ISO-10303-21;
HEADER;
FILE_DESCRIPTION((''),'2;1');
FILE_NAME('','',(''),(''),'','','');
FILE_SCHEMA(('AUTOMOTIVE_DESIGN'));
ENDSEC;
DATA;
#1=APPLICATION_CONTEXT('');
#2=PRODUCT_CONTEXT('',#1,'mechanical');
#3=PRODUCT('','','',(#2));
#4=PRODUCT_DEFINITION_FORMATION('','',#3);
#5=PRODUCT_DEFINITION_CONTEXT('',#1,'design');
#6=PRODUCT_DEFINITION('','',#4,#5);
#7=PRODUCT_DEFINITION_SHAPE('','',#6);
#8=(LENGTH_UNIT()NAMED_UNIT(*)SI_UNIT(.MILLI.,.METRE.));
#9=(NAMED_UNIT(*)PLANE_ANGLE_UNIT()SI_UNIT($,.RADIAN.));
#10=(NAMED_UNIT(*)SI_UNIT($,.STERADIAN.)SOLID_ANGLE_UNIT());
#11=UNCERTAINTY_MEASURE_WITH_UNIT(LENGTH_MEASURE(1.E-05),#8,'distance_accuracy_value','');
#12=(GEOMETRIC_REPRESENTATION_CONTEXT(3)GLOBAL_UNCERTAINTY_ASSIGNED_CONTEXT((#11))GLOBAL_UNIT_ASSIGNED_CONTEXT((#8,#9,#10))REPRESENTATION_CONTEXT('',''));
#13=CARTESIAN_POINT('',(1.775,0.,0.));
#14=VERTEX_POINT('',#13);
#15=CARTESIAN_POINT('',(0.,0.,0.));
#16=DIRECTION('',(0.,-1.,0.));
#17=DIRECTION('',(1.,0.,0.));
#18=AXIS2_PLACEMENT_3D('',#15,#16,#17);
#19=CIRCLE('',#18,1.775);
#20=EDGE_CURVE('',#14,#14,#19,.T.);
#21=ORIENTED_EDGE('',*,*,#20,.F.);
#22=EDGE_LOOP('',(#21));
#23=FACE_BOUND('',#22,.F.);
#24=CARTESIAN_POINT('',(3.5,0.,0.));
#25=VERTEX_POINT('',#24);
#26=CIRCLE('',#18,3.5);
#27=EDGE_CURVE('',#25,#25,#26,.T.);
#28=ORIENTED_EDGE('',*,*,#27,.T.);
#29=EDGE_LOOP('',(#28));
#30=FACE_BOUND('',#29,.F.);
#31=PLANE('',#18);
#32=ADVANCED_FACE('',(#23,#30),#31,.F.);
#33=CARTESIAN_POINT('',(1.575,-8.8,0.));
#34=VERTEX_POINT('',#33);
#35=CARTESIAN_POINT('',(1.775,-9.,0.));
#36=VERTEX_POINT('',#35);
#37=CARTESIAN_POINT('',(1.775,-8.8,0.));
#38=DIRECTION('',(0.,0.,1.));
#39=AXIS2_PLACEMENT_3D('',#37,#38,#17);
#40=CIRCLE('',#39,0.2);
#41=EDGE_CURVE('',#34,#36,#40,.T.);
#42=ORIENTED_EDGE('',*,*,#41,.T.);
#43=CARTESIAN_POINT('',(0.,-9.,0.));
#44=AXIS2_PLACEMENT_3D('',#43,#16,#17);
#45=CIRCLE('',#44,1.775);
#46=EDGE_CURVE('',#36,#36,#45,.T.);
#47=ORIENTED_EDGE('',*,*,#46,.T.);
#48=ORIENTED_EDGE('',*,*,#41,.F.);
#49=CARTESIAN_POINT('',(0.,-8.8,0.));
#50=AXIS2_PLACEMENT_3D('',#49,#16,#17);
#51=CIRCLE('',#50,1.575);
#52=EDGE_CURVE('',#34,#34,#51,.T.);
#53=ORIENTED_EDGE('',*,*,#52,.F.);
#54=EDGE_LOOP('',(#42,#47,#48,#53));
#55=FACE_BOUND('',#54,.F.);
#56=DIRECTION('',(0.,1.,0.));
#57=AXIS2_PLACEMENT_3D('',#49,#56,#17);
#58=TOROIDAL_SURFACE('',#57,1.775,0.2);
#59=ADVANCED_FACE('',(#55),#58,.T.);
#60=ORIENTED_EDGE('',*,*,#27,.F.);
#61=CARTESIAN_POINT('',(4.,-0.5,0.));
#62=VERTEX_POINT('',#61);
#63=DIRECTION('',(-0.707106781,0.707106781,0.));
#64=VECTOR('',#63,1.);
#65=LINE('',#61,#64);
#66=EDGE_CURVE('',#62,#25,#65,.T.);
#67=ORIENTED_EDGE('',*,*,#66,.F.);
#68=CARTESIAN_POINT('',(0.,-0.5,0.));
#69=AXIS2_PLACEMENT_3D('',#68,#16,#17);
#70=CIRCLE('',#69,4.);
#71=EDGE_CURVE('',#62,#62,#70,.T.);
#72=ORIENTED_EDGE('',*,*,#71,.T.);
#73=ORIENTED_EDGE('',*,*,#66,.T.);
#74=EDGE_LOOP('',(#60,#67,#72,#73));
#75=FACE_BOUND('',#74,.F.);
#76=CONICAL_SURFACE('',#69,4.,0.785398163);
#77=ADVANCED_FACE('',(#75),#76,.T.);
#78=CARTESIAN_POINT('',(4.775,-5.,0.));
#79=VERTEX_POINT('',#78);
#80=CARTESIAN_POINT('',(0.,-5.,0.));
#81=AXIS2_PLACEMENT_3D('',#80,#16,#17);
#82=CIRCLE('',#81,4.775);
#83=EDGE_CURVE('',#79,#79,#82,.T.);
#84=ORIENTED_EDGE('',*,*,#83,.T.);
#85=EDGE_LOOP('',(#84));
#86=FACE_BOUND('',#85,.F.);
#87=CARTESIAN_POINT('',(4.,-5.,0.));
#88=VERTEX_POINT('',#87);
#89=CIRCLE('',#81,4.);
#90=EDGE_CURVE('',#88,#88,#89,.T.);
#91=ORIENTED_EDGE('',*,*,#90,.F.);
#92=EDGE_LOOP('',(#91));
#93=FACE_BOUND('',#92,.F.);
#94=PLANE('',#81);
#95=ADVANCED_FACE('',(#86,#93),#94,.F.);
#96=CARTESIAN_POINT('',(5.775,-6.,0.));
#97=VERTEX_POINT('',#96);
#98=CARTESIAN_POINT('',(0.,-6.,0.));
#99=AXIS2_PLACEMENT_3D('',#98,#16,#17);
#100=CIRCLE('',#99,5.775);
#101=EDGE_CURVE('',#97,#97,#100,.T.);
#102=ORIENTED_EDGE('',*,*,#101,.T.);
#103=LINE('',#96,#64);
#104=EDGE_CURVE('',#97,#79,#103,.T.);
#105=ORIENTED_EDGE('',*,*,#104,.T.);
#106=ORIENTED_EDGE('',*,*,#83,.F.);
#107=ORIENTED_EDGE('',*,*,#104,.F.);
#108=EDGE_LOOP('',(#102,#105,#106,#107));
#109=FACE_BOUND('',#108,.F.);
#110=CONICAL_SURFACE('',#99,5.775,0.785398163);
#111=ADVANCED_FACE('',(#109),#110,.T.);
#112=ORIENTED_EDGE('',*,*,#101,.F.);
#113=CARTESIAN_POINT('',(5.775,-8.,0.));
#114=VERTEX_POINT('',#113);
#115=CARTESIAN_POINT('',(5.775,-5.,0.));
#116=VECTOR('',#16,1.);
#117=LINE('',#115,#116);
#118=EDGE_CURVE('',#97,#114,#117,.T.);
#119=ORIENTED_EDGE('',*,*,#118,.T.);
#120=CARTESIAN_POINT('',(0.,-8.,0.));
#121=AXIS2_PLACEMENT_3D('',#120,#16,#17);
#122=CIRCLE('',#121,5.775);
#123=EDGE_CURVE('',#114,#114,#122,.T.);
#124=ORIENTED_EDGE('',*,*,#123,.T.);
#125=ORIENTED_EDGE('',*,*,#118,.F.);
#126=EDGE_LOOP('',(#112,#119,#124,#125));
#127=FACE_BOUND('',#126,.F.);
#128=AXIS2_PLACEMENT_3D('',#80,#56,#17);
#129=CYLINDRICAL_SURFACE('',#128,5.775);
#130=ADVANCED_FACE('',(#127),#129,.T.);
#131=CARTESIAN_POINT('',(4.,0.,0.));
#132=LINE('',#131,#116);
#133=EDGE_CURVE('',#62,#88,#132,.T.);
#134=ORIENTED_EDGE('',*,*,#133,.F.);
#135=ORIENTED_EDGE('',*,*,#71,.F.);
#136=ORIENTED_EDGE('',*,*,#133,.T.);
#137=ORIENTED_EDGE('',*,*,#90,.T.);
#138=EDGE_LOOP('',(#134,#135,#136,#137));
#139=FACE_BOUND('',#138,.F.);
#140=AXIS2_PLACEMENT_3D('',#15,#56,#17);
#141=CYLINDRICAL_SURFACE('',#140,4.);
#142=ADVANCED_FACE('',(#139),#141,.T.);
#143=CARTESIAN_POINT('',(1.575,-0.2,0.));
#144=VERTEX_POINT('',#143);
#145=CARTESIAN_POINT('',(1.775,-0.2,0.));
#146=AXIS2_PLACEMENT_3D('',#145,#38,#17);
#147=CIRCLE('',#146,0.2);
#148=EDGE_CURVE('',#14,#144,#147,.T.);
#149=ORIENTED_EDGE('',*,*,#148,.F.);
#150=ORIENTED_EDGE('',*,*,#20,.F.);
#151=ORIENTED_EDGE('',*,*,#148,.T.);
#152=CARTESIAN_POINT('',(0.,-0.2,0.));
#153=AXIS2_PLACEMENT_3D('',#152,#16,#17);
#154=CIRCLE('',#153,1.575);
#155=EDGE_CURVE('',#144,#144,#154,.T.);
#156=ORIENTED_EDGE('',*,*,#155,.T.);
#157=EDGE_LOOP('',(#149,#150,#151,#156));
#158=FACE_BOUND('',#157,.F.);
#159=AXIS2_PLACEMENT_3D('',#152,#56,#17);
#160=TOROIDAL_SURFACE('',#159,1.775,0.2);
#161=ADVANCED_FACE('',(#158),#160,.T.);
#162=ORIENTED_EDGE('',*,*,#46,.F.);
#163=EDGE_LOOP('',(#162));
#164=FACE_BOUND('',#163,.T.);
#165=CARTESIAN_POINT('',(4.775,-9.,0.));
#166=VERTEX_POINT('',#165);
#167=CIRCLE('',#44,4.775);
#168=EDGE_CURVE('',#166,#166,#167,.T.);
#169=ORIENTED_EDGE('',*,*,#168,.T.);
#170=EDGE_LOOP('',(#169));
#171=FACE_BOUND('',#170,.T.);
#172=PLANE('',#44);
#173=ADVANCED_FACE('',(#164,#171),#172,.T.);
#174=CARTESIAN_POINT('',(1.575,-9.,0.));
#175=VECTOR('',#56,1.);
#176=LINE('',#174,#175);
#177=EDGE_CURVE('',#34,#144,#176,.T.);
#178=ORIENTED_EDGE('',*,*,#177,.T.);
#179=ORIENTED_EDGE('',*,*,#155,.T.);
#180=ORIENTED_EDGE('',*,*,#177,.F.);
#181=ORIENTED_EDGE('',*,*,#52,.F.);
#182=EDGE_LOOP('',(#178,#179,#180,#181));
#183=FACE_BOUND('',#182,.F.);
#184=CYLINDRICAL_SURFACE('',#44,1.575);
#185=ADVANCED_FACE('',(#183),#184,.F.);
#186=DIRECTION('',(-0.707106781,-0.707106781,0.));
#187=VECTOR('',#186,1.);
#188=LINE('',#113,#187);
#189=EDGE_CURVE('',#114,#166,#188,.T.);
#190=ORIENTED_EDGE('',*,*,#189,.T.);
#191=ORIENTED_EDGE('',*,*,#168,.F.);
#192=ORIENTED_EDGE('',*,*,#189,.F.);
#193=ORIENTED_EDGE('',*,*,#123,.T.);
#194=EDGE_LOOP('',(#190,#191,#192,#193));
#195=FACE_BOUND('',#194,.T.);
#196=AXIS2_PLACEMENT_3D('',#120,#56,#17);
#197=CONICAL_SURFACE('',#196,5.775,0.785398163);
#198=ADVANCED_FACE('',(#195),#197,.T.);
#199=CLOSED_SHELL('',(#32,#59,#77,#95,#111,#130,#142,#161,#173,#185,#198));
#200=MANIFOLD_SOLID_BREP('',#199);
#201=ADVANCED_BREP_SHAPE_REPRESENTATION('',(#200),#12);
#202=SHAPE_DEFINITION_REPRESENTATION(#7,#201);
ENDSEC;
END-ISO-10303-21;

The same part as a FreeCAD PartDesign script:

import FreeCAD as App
import Part
import Sketcher


def edges_at(feature, points):
    """Names of the edges that pass closest to the given points."""
    edges = feature.Shape.Edges
    near = lambda p: min(range(len(edges)), key=lambda i: edges[i].distToShape(Part.Vertex(*p))[0])
    return sorted({f"Edge{near(p) + 1}" for p in points})

doc = App.newDocument("Part")
body = doc.addObject("PartDesign::Body", "Body")

# Sketch on XZ plane
sketch1 = body.newObject("Sketcher::SketchObject", "Sketch")
sketch1.AttachmentSupport = (doc.getObject("XZ_Plane"), [""])
sketch1.MapMode = "FlatFace"
sketch1.addGeometry(Part.Circle(App.Vector(0, 0, 0), App.Vector(0, 0, 1), 4), False)
sketch1.addConstraint(Sketcher.Constraint("Coincident", 0, 3, -1, 1))
sketch1.addConstraint(Sketcher.Constraint("Diameter", 0, 8.0))
pad1 = body.newObject("PartDesign::Pad", "Pad")
pad1.Profile = sketch1
pad1.Length = 5

# Sketch on XZ plane
sketch2 = body.newObject("Sketcher::SketchObject", "Sketch001")
sketch2.AttachmentSupport = (doc.getObject("XZ_Plane"), [""])
sketch2.MapMode = "FlatFace"
sketch2.AttachmentOffset = App.Placement(App.Vector(0, 0, 5), App.Rotation())
sketch2.addGeometry(Part.Circle(App.Vector(0, 0, 0), App.Vector(0, 0, 1), 6), False)
sketch2.addConstraint(Sketcher.Constraint("Coincident", 0, 3, -1, 1))
sketch2.addConstraint(Sketcher.Constraint("Diameter", 0, 11.55))
pad2 = body.newObject("PartDesign::Pad", "Pad001")
pad2.Profile = sketch2
pad2.Length = 4

# Sketch on XZ plane
sketch3 = body.newObject("Sketcher::SketchObject", "Sketch002")
sketch3.AttachmentSupport = (doc.getObject("XZ_Plane"), [""])
sketch3.MapMode = "FlatFace"
sketch3.AttachmentOffset = App.Placement(App.Vector(0, 0, 9), App.Rotation())
sketch3.addGeometry(Part.Circle(App.Vector(0, 0, 0), App.Vector(0, 0, 1), 1.6), False)
sketch3.addConstraint(Sketcher.Constraint("Coincident", 0, 3, -1, 1))
sketch3.addConstraint(Sketcher.Constraint("Diameter", 0, 3.15))
pocket1 = body.newObject("PartDesign::Pocket", "Pocket")
pocket1.Profile = sketch3
pocket1.Length = 10
doc.recompute()

chamfer = body.newObject("PartDesign::Chamfer", "Chamfer")
chamfer.Base = (pocket1, edges_at(pocket1, [(-5.775, -9, 0), (-5.775, -5, 0)]))
chamfer.Size = 1
doc.recompute()

chamfer2 = body.newObject("PartDesign::Chamfer", "Chamfer001")
chamfer2.Base = (chamfer, edges_at(chamfer, [(-4, 0, 0)]))
chamfer2.Size = 0.5
doc.recompute()

fillet = body.newObject("PartDesign::Fillet", "Fillet")
fillet.Base = (chamfer2, edges_at(chamfer2, [(-1.575, -9, 0), (-1.575, 0, 0)]))
fillet.Radius = 0.2

doc.recompute()
